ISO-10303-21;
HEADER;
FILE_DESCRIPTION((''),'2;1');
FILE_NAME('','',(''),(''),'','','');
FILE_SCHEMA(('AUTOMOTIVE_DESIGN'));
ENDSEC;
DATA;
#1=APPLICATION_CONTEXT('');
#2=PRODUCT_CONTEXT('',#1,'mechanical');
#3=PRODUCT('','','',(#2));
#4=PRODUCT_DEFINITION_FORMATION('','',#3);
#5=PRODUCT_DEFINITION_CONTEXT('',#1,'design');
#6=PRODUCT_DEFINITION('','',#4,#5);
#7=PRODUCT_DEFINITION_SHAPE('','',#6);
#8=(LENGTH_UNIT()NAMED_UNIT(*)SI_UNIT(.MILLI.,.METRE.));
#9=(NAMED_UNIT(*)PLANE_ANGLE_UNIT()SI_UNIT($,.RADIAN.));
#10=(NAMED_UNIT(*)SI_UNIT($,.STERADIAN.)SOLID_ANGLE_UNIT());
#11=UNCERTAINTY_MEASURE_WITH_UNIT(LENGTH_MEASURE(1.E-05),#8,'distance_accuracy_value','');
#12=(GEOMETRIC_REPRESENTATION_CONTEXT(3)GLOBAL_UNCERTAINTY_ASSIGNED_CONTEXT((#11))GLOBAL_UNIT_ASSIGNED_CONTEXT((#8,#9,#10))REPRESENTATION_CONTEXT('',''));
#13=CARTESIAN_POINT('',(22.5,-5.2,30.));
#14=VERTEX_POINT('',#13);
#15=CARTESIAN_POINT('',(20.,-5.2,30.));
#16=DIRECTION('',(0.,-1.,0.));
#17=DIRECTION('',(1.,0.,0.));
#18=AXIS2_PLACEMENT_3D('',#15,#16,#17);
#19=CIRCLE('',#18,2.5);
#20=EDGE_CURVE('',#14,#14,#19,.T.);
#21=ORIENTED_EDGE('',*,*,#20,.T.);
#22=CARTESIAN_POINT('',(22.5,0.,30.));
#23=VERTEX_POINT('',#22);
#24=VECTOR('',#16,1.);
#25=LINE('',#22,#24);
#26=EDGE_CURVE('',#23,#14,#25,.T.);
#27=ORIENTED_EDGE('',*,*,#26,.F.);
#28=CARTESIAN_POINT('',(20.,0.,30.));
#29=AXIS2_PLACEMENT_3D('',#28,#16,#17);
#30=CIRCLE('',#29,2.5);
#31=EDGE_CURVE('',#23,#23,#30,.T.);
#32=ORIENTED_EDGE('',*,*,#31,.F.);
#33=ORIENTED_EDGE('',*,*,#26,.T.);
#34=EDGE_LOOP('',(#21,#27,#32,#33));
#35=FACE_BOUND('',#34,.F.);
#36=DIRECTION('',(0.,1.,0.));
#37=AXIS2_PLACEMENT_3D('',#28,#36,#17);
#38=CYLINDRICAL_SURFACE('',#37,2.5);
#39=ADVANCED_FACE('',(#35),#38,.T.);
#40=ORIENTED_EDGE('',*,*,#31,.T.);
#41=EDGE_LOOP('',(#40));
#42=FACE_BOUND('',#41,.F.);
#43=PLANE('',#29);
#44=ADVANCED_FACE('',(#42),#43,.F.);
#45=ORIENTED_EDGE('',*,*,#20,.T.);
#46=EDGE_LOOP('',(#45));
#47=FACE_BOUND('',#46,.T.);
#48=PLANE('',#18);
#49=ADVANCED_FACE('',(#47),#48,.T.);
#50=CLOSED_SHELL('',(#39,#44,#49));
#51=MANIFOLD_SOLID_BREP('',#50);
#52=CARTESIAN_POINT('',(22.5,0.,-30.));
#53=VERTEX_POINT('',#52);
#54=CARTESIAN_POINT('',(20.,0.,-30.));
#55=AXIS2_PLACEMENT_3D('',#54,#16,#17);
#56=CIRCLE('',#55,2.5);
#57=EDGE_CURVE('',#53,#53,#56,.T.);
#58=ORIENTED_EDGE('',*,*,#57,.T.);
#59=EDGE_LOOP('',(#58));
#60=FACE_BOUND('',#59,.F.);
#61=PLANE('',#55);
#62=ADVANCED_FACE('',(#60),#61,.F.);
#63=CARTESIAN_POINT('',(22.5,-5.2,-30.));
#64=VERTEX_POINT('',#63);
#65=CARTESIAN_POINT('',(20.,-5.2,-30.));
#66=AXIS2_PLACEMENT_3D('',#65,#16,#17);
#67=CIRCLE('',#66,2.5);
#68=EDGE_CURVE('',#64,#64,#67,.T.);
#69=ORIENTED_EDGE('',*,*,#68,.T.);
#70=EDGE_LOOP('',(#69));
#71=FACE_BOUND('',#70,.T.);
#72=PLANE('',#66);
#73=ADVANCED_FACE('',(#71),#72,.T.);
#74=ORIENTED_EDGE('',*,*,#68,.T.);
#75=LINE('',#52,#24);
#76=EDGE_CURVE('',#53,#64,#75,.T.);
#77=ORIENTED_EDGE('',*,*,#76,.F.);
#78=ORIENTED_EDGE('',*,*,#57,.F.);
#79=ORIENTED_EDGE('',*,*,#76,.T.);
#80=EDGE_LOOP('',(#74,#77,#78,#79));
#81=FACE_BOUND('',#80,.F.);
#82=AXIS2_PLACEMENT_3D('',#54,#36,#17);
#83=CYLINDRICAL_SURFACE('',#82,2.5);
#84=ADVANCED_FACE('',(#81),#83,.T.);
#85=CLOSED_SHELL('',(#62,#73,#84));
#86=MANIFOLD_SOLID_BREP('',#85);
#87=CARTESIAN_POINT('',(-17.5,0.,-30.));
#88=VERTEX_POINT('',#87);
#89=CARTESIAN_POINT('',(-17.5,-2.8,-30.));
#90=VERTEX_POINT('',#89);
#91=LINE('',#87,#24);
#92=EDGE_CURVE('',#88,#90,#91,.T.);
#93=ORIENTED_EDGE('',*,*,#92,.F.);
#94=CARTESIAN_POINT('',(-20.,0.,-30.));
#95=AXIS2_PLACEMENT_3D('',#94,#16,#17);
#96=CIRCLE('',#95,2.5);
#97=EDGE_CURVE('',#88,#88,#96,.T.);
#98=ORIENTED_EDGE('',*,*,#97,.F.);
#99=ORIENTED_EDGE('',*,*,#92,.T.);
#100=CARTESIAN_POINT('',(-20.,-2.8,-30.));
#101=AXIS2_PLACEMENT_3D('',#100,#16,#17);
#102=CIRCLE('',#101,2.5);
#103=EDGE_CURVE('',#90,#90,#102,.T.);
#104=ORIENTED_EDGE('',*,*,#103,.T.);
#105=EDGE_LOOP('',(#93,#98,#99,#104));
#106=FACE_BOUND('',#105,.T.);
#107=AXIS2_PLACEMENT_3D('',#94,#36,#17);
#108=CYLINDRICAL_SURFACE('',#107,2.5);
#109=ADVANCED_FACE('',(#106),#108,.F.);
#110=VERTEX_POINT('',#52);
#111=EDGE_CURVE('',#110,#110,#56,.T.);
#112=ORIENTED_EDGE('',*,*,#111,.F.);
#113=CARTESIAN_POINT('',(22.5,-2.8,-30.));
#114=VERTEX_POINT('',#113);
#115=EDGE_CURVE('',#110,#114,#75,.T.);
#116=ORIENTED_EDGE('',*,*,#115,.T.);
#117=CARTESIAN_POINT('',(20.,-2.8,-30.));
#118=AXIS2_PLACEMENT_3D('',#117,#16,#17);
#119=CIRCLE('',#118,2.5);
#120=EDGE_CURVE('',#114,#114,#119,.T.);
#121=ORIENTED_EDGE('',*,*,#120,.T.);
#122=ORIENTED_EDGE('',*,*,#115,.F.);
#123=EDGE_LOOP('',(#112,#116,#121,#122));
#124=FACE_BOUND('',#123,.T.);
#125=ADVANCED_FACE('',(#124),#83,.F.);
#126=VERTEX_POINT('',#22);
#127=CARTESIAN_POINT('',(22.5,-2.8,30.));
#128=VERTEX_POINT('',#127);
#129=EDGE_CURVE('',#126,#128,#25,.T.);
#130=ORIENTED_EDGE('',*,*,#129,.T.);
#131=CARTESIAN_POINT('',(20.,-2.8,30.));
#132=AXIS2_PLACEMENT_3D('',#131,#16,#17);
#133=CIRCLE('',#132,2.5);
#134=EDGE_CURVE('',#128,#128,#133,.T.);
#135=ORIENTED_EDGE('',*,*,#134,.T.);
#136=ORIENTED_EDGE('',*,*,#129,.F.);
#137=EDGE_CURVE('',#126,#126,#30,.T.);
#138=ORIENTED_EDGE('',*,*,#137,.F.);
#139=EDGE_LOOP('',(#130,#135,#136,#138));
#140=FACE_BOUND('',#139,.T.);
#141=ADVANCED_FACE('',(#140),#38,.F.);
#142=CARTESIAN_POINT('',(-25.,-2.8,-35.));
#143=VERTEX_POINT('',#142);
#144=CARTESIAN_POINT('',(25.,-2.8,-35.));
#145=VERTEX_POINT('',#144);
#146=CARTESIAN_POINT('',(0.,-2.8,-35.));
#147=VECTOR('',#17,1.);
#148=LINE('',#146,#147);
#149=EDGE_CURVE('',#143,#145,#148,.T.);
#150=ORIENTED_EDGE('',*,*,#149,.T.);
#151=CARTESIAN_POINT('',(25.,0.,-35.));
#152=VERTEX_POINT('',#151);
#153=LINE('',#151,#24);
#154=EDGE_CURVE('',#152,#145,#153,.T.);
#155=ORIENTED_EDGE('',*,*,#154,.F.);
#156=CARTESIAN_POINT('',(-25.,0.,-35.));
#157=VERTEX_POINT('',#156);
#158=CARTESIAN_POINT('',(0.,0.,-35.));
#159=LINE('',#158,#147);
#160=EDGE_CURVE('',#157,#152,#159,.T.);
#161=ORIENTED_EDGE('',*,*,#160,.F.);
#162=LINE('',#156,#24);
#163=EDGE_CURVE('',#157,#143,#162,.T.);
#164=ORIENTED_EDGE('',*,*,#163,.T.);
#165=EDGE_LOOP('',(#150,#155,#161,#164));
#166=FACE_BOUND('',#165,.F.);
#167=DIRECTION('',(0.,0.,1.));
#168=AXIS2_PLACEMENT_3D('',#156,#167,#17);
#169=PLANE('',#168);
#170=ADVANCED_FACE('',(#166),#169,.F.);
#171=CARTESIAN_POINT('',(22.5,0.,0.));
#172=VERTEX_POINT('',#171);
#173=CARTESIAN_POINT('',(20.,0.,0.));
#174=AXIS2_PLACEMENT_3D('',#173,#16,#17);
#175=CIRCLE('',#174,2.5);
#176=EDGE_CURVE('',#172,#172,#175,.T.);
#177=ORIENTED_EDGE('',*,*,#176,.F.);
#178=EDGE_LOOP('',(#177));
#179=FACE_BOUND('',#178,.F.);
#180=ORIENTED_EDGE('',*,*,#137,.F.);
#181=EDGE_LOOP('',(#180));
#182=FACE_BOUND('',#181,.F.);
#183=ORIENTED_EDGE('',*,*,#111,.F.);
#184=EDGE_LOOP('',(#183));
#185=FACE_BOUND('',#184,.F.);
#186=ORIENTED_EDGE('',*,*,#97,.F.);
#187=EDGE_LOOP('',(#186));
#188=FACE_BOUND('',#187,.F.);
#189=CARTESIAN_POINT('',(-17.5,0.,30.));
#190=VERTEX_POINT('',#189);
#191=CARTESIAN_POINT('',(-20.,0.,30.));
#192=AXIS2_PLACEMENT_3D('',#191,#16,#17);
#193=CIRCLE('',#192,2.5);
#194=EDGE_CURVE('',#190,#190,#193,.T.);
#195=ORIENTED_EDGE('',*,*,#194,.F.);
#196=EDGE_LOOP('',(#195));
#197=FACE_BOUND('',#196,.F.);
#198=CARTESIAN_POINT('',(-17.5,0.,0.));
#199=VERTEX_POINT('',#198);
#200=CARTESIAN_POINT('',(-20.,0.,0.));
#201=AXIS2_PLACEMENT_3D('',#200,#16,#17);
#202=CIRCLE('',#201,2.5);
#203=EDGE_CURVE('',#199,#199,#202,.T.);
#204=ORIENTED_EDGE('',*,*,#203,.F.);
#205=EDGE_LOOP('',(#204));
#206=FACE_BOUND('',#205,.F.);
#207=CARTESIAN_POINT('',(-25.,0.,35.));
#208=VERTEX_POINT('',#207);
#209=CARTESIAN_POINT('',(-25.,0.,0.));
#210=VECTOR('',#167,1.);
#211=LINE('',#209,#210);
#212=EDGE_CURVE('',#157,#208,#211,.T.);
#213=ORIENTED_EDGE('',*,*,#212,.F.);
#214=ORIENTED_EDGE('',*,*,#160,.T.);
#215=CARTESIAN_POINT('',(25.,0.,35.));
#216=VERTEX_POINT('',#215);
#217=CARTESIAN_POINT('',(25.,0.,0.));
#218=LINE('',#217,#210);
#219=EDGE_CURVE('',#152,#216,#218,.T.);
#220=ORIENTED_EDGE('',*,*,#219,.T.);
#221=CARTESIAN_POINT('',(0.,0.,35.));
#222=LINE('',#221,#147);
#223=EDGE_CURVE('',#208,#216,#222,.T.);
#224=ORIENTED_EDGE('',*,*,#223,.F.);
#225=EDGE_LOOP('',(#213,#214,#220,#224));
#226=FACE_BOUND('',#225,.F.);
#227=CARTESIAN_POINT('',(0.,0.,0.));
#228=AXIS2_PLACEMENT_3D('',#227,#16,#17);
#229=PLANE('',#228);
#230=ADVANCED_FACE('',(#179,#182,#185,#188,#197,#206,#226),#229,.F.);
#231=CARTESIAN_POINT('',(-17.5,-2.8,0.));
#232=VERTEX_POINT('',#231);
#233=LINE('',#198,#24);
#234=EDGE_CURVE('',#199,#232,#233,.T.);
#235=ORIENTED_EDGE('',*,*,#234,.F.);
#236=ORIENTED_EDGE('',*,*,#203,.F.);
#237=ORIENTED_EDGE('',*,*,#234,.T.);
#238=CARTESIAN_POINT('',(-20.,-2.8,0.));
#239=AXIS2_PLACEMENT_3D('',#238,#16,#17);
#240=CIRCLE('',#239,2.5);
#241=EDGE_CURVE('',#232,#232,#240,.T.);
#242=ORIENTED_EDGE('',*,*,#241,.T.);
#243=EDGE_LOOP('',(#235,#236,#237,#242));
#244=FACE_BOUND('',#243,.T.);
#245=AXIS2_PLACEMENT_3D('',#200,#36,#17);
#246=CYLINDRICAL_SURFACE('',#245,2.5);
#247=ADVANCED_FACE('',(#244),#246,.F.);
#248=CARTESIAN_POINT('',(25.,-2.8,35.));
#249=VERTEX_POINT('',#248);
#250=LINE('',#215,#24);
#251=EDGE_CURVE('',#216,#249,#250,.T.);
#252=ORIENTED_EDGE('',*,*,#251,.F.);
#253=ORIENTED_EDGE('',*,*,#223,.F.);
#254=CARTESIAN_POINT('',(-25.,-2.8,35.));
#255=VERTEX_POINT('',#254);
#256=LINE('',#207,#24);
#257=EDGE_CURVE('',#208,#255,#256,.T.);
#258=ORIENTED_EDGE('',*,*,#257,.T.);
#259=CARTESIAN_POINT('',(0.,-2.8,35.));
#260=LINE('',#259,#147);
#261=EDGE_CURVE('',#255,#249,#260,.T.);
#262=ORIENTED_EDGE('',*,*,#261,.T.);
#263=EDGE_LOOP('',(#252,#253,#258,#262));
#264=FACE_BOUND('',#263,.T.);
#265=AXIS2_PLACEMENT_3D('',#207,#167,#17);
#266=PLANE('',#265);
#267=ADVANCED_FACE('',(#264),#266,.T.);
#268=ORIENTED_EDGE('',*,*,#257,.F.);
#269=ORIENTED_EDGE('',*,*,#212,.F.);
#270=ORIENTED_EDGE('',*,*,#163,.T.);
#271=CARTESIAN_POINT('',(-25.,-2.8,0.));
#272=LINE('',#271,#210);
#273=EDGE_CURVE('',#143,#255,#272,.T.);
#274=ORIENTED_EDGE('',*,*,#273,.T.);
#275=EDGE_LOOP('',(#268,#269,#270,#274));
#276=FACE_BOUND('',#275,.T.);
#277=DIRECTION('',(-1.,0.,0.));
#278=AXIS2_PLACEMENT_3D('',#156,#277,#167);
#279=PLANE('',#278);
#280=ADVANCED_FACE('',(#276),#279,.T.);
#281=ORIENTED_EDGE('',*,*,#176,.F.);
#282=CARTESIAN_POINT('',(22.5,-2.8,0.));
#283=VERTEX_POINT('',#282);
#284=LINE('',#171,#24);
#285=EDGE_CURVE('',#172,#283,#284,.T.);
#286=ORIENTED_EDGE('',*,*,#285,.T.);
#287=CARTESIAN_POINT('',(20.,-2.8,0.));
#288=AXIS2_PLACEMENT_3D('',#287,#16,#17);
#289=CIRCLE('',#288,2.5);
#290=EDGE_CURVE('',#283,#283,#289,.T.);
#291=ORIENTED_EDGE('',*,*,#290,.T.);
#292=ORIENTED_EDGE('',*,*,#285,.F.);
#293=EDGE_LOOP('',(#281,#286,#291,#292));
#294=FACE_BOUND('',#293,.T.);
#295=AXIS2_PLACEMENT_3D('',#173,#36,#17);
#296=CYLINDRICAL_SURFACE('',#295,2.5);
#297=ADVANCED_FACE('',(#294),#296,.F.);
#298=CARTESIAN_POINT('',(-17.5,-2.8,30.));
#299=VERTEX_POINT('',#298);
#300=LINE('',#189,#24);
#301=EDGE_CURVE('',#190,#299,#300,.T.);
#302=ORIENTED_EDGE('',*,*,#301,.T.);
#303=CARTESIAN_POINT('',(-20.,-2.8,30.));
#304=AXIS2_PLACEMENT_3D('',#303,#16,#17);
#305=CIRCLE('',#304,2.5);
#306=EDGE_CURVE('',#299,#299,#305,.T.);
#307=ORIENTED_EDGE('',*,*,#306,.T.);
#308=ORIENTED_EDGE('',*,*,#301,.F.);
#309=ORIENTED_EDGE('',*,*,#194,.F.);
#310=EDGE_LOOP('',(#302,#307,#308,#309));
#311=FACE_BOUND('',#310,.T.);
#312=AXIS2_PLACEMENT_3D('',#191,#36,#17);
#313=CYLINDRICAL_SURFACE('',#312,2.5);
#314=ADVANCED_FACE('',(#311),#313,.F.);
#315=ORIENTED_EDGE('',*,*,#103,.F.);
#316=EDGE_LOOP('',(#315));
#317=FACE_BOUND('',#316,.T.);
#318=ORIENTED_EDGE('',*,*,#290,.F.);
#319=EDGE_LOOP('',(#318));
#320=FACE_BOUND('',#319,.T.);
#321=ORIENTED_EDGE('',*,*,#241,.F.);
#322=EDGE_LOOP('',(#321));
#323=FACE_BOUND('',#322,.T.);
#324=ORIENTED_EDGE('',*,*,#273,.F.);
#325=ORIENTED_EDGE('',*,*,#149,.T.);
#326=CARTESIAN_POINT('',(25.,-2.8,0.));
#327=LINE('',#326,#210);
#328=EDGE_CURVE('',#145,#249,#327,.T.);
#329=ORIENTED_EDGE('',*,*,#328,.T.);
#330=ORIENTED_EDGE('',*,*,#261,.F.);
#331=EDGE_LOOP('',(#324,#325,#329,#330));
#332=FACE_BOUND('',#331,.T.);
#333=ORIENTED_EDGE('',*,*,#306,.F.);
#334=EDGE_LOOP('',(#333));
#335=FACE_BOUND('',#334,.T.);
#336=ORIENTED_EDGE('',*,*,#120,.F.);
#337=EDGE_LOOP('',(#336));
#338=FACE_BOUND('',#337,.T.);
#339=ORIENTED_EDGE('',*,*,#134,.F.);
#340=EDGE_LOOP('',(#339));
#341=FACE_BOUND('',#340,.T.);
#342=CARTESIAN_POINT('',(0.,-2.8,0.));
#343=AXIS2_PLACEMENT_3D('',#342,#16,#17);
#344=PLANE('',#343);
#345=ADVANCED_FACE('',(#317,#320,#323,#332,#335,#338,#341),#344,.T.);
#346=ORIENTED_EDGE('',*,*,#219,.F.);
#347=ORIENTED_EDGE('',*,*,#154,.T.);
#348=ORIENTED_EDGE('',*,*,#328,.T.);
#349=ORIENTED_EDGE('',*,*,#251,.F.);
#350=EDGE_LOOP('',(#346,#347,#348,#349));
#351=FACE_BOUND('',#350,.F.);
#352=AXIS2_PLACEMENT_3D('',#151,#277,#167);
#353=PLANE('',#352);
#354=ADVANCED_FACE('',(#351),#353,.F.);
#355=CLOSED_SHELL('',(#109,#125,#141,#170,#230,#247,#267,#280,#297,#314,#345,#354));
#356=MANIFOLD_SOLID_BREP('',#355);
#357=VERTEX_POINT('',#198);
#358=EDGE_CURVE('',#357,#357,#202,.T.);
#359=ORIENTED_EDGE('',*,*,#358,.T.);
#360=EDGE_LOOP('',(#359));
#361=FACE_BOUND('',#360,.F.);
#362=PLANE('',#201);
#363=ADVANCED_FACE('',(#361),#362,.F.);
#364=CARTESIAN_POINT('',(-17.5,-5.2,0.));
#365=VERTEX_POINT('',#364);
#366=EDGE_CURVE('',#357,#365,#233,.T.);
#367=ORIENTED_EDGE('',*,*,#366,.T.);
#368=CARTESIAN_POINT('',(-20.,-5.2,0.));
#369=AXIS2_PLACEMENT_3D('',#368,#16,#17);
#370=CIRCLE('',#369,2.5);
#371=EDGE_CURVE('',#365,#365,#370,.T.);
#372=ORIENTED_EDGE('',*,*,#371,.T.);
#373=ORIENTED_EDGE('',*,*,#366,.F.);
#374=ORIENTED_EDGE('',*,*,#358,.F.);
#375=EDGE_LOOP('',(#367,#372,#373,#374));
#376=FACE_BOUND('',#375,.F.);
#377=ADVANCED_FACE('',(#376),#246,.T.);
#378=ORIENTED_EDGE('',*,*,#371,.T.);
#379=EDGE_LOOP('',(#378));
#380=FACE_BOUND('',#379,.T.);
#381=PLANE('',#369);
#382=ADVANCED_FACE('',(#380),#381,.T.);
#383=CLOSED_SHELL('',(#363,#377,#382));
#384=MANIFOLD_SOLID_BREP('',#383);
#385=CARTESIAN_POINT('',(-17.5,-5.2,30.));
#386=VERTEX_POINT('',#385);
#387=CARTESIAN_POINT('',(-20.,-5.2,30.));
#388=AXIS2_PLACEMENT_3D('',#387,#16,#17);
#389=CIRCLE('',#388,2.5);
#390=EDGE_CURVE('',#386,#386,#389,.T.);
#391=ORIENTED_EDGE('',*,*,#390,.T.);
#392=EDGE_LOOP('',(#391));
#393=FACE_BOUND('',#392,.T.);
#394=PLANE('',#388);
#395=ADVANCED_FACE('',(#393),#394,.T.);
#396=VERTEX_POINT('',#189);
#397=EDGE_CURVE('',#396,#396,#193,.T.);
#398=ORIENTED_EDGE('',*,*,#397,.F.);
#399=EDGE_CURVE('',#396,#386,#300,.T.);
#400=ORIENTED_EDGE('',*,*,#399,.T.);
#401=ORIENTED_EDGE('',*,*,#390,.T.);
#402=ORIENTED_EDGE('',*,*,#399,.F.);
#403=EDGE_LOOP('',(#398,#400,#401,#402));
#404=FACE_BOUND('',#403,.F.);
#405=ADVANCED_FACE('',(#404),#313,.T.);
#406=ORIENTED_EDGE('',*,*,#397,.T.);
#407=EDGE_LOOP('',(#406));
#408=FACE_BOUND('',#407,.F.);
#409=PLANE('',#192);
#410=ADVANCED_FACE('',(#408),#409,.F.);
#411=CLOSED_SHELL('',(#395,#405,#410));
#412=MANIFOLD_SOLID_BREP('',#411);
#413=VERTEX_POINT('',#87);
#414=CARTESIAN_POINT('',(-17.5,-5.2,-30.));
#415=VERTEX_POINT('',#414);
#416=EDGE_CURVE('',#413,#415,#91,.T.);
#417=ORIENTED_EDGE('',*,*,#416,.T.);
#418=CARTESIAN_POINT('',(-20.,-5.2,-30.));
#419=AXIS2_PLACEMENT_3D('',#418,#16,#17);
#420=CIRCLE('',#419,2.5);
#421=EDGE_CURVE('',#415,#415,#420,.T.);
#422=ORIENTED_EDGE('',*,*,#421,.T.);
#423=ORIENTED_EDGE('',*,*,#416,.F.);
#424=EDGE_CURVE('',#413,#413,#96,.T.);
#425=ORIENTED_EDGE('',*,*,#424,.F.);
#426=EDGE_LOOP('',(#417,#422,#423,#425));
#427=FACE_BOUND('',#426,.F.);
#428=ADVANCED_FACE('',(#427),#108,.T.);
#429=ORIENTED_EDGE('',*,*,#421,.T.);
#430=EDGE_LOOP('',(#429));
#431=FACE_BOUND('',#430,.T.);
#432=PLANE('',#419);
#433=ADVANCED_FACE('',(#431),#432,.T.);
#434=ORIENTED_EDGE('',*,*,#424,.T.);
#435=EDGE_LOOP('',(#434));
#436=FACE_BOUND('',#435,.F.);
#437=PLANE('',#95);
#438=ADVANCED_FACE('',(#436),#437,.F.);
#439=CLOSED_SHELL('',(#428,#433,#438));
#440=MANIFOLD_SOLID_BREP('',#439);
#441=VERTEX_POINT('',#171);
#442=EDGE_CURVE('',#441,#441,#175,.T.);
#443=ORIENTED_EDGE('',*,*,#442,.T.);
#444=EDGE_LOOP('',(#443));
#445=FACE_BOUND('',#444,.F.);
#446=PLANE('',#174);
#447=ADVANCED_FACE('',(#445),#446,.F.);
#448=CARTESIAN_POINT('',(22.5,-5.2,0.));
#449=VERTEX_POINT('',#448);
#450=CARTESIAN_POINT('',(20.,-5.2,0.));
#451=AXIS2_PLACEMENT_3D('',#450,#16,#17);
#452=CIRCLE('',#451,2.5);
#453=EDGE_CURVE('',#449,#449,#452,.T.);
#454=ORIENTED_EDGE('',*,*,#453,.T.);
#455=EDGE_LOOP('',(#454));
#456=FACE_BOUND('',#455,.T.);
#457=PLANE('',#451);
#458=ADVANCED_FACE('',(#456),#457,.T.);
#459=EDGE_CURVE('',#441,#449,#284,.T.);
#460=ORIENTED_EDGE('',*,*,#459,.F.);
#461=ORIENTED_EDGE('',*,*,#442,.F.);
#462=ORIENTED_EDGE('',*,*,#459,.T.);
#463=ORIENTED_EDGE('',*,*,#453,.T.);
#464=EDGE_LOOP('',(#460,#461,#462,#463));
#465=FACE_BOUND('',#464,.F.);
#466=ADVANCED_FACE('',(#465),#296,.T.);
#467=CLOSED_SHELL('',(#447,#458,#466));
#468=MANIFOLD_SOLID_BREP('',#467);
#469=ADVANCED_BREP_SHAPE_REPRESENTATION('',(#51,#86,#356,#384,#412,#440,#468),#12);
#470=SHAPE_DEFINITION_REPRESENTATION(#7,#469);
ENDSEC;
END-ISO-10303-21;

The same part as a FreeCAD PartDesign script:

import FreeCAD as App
import Part
import Sketcher

V = App.Vector


def add_polygon(sketch, points):
    """Adds a closed chain of lines whose ends are joined by coincident constraints."""
    first, n = sketch.GeometryCount, len(points)
    for a, b in zip(points, points[1:] + points[:1]):
        sketch.addGeometry(Part.LineSegment(App.Vector(*a, 0), App.Vector(*b, 0)), False)
    for i in range(n):
        sketch.addConstraint(Sketcher.Constraint("Coincident", first + i, 2, first + (i + 1) % n, 1))

doc = App.newDocument("Part")
body = doc.addObject("PartDesign::Body", "Body")
body.AllowCompound = True

# Sketch on XZ plane
sketch1 = body.newObject("Sketcher::SketchObject", "Sketch")
sketch1.AttachmentSupport = (doc.getObject("XZ_Plane"), [""])
sketch1.MapMode = "FlatFace"
sketch1.addGeometry([
    Part.Circle(V(-20, 30, 0), V(0, 0, 1), 2.5),  # 0
    Part.Circle(V(20, 30, 0), V(0, 0, 1), 2.5),  # 1
    Part.Circle(V(20, 0, 0), V(0, 0, 1), 2.5),  # 2
    Part.Circle(V(-20, 0, 0), V(0, 0, 1), 2.5),  # 3
    Part.Circle(V(-20, -30, 0), V(0, 0, 1), 2.5),  # 4
    Part.Circle(V(20, -30, 0), V(0, 0, 1), 2.5),  # 5
], False)
sketch1.addConstraint([
    Sketcher.Constraint("Equal", 0, 1),
    Sketcher.Constraint("Equal", 1, 2),
    Sketcher.Constraint("Equal", 2, 3),
    Sketcher.Constraint("Equal", 3, 4),
    Sketcher.Constraint("Equal", 4, 5),
    Sketcher.Constraint("Symmetric", 2, 3, 3, 3, -1, 1),
    Sketcher.Constraint("Symmetric", 1, 3, 4, 3, -1, 1),
    Sketcher.Constraint("Symmetric", 0, 3, 5, 3, -1, 1),
    Sketcher.Constraint("Symmetric", 0, 3, 1, 3, -2),
    Sketcher.Constraint("PointOnObject", 2, 3, -1),
    Sketcher.Constraint("Vertical", 1, 3, 2, 3),
    Sketcher.Constraint("Diameter", 0, 5.0),
    Sketcher.Constraint("DistanceX", 0, 3, -1, 1, 20.0),
    Sketcher.Constraint("DistanceY", -1, 1, 0, 3, 30.0),
])
pad1 = body.newObject("PartDesign::Pad", "Pad")
pad1.Profile = sketch1
pad1.Length = 5.2
body2 = doc.addObject("PartDesign::Body", "Body001")

# Sketch on XZ plane
sketch2 = body2.newObject("Sketcher::SketchObject", "Sketch001")
sketch2.AttachmentSupport = (doc.getObject("XZ_Plane001"), [""])
sketch2.MapMode = "FlatFace"
add_polygon(sketch2, [(-25, 35), (-25, -35), (25, -35), (25, 35)])  # lines 0-3
sketch2.addGeometry(Part.Circle(V(-20, -30, 0), V(0, 0, 1), 2.5), False)  # 4
sketch2.addGeometry(Part.Circle(V(20, -30, 0), V(0, 0, 1), 2.5), False)  # 5
sketch2.addGeometry(Part.Circle(V(-20, 0, 0), V(0, 0, 1), 2.5), False)  # 6
sketch2.addGeometry(Part.Circle(V(-20, 30, 0), V(0, 0, 1), 2.5), False)  # 7
sketch2.addGeometry(Part.Circle(V(20, 0, 0), V(0, 0, 1), 2.5), False)  # 8
sketch2.addGeometry(Part.Circle(V(20, 30, 0), V(0, 0, 1), 2.5), False)  # 9
sketch2.addConstraint([
    Sketcher.Constraint("Vertical", 0),
    Sketcher.Constraint("Horizontal", 1),
    Sketcher.Constraint("Vertical", 2),
    Sketcher.Constraint("Horizontal", 3),
    Sketcher.Constraint("Equal", 4, 5),
    Sketcher.Constraint("Equal", 5, 6),
    Sketcher.Constraint("Equal", 6, 7),
    Sketcher.Constraint("Equal", 7, 8),
    Sketcher.Constraint("Equal", 8, 9),
    Sketcher.Constraint("Symmetric", 5, 3, 7, 3, -1, 1),
    Sketcher.Constraint("Symmetric", 6, 3, 8, 3, -1, 1),
    Sketcher.Constraint("Symmetric", 4, 3, 9, 3, -1, 1),
    Sketcher.Constraint("Symmetric", 0, 2, 2, 2, -1, 1),
    Sketcher.Constraint("Symmetric", 4, 3, 5, 3, -2),
    Sketcher.Constraint("PointOnObject", 6, 3, -1),
    Sketcher.Constraint("Vertical", 4, 3, 6, 3),
    Sketcher.Constraint("Diameter", 4, 5.0),
    Sketcher.Constraint("DistanceX", 1, 1, 1, 2, 50.0),
    Sketcher.Constraint("DistanceY", 0, 2, 0, 1, 70.0),
    Sketcher.Constraint("DistanceX", 4, 3, -1, 1, 20.0),
    Sketcher.Constraint("DistanceY", 4, 3, -1, 1, 30.0),
])
pad2 = body2.newObject("PartDesign::Pad", "Pad001")
pad2.Profile = sketch2
pad2.Length = 2.8

doc.recompute()
